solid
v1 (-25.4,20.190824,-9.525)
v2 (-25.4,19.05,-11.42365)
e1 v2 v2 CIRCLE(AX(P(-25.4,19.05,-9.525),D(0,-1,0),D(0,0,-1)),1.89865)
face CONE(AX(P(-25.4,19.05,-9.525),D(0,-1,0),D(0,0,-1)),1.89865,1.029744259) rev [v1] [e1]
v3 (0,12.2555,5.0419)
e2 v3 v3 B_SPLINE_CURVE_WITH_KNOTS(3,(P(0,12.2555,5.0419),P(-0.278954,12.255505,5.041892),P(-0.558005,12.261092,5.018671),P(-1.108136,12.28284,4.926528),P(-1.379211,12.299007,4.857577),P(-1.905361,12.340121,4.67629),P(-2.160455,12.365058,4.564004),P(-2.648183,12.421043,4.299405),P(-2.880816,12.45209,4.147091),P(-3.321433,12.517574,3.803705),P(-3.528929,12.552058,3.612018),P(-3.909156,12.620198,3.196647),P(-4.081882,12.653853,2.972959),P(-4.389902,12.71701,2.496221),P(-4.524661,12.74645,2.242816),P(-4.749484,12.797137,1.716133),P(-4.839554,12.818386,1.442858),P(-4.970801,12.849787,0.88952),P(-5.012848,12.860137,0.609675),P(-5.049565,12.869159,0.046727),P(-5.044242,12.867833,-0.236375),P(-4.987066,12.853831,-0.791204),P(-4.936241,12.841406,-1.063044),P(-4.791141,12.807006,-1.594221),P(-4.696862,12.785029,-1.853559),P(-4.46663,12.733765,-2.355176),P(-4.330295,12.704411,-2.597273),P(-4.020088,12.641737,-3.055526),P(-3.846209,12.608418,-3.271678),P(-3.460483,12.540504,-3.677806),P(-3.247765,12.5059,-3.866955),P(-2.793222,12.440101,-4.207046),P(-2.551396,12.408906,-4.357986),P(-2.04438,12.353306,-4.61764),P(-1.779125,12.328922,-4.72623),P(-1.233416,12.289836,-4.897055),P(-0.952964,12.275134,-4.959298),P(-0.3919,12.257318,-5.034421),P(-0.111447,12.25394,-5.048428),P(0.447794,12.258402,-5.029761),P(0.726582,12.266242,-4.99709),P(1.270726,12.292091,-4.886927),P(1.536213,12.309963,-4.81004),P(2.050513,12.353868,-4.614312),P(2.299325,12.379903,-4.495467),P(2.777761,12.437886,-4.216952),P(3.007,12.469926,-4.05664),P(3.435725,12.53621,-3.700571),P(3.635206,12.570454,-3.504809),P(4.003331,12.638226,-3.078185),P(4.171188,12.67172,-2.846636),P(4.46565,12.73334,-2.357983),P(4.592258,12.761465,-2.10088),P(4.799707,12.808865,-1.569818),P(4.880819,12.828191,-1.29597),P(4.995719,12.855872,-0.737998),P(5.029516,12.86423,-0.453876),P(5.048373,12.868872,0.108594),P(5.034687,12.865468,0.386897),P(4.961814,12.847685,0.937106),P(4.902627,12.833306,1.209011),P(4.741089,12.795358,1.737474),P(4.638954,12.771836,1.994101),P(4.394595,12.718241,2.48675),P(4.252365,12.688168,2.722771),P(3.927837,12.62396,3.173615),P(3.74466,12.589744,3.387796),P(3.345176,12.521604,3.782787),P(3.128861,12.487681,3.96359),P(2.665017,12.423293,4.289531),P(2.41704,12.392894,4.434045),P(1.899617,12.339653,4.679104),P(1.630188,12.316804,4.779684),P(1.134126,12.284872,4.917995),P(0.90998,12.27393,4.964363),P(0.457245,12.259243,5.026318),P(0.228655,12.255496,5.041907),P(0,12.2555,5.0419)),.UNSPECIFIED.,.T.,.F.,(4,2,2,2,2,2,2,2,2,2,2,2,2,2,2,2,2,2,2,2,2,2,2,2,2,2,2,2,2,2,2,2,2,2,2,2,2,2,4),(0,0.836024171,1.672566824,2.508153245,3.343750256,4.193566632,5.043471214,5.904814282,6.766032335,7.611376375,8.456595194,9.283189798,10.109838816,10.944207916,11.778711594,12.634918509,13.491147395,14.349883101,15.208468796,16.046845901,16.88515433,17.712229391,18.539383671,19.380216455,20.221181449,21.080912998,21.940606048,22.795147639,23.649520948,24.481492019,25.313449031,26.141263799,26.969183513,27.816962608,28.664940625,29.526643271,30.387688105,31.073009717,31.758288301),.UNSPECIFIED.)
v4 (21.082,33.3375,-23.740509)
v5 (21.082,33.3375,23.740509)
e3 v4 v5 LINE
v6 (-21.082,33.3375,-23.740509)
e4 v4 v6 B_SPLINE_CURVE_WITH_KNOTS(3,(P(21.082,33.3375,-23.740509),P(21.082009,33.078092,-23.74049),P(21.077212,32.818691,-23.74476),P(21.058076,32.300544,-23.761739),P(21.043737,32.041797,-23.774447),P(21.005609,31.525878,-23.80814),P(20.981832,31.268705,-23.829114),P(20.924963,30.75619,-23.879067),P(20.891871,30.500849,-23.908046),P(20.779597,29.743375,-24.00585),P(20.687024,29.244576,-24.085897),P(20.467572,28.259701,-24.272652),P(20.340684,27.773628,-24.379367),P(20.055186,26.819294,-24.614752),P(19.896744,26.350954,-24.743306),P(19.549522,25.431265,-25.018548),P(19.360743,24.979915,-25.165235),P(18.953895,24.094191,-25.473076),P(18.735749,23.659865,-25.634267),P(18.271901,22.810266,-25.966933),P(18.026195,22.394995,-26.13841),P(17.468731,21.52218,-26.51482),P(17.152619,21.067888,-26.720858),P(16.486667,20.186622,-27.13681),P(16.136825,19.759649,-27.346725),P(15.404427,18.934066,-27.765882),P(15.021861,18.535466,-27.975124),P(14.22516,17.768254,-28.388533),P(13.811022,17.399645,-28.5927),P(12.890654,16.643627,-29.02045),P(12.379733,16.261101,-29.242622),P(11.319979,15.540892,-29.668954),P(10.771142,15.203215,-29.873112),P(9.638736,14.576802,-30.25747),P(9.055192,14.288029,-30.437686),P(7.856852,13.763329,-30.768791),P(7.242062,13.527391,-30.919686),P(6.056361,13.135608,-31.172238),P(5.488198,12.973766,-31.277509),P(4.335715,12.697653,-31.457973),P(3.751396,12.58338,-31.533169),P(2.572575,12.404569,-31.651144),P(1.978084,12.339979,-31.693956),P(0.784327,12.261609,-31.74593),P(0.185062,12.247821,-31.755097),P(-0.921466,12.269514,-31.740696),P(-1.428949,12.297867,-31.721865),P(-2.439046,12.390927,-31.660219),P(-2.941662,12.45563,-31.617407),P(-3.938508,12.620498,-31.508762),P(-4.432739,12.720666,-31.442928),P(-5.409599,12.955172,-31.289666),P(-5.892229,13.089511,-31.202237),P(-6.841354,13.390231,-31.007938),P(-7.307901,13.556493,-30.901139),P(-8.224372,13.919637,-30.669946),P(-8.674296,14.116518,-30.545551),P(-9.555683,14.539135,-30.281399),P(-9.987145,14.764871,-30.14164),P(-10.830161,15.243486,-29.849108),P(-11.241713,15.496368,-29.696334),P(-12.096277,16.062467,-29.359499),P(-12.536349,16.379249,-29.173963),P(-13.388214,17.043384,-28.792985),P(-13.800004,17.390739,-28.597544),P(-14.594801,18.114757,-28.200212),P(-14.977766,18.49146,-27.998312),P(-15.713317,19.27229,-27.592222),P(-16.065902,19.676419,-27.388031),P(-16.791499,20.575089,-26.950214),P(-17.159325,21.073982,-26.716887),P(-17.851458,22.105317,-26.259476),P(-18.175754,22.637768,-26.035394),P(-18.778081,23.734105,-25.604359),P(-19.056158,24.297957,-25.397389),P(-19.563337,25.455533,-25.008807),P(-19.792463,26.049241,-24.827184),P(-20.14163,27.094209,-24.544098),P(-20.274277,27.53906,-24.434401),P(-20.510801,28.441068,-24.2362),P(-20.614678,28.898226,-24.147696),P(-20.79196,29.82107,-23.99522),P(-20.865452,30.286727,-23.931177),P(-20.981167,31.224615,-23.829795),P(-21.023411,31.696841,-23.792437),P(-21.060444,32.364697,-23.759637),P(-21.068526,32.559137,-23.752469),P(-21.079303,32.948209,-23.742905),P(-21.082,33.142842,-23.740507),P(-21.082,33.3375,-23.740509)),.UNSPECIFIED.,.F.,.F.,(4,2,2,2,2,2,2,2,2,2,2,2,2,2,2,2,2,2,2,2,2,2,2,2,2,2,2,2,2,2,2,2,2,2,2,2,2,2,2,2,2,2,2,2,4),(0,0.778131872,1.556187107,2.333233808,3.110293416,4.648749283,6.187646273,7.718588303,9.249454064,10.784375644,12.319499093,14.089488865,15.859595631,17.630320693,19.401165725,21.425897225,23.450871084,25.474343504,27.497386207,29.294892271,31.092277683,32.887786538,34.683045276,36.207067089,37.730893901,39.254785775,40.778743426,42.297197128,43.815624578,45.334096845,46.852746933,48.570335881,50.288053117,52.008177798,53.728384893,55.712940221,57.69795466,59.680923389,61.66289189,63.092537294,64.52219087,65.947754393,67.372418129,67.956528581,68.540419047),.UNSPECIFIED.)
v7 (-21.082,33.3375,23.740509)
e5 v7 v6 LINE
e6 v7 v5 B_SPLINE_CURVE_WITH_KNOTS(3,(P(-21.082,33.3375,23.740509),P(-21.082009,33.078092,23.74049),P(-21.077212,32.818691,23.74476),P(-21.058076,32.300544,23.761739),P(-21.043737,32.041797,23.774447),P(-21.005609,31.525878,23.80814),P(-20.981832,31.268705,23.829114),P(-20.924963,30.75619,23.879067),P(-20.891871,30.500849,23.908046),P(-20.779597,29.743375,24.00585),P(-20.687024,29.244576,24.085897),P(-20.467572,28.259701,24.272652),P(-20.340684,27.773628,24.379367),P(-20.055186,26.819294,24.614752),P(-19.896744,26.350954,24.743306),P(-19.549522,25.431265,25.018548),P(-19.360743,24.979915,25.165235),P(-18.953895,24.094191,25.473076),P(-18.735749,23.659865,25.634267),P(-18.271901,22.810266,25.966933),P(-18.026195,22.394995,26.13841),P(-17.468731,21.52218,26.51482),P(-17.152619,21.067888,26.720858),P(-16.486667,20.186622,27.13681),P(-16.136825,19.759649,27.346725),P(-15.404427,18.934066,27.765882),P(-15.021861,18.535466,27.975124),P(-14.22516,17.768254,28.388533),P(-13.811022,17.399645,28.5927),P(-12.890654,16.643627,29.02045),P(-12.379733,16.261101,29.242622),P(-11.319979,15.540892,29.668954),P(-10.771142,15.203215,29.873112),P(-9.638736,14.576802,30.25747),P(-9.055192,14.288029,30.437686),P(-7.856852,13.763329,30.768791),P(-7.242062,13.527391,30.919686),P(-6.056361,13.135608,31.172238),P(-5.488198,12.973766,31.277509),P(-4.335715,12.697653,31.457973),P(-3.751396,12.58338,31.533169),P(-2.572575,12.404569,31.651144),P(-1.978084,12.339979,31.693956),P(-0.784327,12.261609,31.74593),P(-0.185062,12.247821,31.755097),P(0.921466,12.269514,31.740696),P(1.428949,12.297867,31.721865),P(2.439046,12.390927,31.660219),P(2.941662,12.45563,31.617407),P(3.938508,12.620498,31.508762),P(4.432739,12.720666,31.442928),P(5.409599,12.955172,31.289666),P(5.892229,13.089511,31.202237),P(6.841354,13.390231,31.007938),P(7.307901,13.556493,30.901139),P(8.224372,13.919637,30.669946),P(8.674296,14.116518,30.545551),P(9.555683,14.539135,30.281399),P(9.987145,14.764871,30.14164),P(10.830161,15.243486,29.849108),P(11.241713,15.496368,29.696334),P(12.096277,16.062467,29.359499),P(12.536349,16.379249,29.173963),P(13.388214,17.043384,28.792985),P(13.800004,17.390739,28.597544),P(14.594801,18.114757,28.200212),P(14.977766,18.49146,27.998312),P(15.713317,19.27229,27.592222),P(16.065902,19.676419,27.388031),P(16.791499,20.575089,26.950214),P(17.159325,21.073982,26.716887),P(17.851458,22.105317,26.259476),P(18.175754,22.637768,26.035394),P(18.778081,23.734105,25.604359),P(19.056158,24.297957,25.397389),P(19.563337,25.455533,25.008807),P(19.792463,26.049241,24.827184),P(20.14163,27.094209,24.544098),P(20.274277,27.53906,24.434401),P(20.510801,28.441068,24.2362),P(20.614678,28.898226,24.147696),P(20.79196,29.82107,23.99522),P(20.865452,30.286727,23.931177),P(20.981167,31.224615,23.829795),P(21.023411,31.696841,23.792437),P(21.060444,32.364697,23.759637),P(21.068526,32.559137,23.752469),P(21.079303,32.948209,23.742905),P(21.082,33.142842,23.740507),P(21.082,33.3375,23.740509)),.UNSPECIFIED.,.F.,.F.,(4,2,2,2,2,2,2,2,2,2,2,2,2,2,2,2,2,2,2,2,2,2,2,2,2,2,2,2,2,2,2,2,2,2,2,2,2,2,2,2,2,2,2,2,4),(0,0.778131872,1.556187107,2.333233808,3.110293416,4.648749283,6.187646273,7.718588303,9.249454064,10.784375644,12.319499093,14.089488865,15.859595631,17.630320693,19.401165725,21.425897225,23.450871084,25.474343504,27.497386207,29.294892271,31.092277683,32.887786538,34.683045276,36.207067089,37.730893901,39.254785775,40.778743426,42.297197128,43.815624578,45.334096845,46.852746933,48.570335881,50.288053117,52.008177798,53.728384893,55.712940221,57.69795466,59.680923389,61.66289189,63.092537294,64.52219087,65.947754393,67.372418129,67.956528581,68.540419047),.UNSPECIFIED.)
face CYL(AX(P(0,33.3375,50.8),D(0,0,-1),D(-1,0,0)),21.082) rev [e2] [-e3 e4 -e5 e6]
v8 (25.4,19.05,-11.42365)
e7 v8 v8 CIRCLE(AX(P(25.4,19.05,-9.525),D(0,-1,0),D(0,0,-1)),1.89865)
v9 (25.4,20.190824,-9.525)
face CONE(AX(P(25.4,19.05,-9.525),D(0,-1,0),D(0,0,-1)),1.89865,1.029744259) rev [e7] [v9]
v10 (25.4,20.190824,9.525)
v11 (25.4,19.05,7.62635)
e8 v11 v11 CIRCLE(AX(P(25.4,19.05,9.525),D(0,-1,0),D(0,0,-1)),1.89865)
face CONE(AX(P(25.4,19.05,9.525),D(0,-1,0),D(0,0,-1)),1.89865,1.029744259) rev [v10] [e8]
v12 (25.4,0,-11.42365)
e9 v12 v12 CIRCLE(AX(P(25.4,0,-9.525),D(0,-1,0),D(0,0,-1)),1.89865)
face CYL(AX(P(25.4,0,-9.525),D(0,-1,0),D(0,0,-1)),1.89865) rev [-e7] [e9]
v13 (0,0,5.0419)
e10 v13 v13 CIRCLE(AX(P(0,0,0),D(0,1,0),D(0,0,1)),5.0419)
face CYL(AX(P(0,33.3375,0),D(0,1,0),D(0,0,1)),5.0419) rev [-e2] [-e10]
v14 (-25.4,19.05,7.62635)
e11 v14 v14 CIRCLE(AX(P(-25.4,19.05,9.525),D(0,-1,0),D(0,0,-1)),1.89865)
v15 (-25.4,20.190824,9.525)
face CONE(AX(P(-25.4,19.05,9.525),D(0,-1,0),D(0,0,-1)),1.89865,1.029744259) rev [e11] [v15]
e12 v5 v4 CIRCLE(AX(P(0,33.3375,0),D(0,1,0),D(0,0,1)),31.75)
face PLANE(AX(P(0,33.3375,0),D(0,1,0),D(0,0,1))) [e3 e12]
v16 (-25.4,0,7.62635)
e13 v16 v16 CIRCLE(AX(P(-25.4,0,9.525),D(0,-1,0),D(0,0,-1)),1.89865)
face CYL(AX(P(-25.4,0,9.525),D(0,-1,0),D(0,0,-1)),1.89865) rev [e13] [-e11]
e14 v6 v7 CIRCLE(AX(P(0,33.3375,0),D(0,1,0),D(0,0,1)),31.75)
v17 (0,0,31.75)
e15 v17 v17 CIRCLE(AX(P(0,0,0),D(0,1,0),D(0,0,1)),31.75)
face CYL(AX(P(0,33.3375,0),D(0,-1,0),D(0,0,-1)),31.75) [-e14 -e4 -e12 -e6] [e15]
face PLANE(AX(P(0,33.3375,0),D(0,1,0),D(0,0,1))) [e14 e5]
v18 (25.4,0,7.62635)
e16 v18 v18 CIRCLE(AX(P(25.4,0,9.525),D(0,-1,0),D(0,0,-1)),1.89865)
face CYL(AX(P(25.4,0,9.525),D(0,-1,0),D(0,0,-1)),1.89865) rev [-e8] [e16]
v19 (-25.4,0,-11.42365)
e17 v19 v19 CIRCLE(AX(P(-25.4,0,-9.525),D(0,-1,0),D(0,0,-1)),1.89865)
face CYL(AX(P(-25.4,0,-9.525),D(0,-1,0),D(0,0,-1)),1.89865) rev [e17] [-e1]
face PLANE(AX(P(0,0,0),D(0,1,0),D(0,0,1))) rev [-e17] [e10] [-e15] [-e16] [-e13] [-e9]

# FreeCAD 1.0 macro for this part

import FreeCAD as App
import Part
import Sketcher
Q = App.Units.Quantity

doc = App.newDocument("Part")
body = doc.addObject("PartDesign::Body", "Body")

sketch1 = doc.addObject("Sketcher::SketchObject", "Sketch")
body.addObject(sketch1)
sketch1.AttachmentSupport = (doc.XZ_Plane, [""])
sketch1.MapMode = "FlatFace"
sketch1.addGeometry(Part.Circle(App.Vector(0, 0, 0), App.Vector(0, 0, 1), 31.75), False)
sketch1.addConstraint([
    Sketcher.Constraint("Coincident", 0, 3, -1, 1),
    Sketcher.Constraint("Diameter", 0, Q("2.5 in")),
])
pad1 = doc.addObject("PartDesign::Pad", "Pad")
body.addObject(pad1)
pad1.Profile = sketch1
pad1.Length = Q("1.3125 in")
pad1.Reversed = True

sketch2 = doc.addObject("Sketcher::SketchObject", "Sketch001")
body.addObject(sketch2)
sketch2.AttachmentSupport = (doc.XZ_Plane, [""])
sketch2.MapMode = "FlatFace"
sketch2.AttachmentOffset = App.Placement(App.Vector(0, 0, -1.3125 * 25.4), App.Rotation())
sketch2.addGeometry(Part.Circle(App.Vector(0, 0, 0), App.Vector(0, 0, 1), 5.0419), False)
sketch2.addConstraint([
    Sketcher.Constraint("Coincident", 0, 3, -1, 1),
    Sketcher.Constraint("Diameter", 0, Q("0.397 in")),
])
doc.recompute()
hole = doc.addObject("PartDesign::Hole", "Hole")
body.addObject(hole)
hole.Profile = sketch2
hole.ThreadType = "None"
hole.Diameter = Q("0.397 in")
hole.DepthType = "ThroughAll"
hole.Reversed = True

sketch3 = doc.addObject("Sketcher::SketchObject", "Sketch002")
body.addObject(sketch3)
sketch3.AttachmentSupport = (doc.XY_Plane, [""])
sketch3.MapMode = "FlatFace"
sketch3.addGeometry(Part.Circle(App.Vector(0, 33.3375, 0), App.Vector(0, 0, 1), 21.082), False)
sketch3.addConstraint([
    Sketcher.Constraint("PointOnObject", 0, 3, -2),
    Sketcher.Constraint("Diameter", 0, Q("1.66 in")),
    Sketcher.Constraint("DistanceY", -1, 1, 0, 3, Q("1.3125 in")),
])
pocket1 = doc.addObject("PartDesign::Pocket", "Pocket")
body.addObject(pocket1)
pocket1.Profile = sketch3
pocket1.Type = "ThroughAll"
pocket1.Midplane = True

sketch4 = doc.addObject("Sketcher::SketchObject", "Sketch003")
body.addObject(sketch4)
sketch4.AttachmentSupport = (doc.XZ_Plane, [""])
sketch4.MapMode = "FlatFace"
sketch4.addGeometry([
    Part.Circle(App.Vector(-25.4, 9.525, 0), App.Vector(0, 0, 1), 1.89865),
    Part.Circle(App.Vector(-25.4, -9.525, 0), App.Vector(0, 0, 1), 1.89865),
    Part.Circle(App.Vector(25.4, -9.525, 0), App.Vector(0, 0, 1), 1.89865),
    Part.Circle(App.Vector(25.4, 9.525, 0), App.Vector(0, 0, 1), 1.89865),
], False)
sketch4.addConstraint([
    Sketcher.Constraint("Equal", 0, 1),
    Sketcher.Constraint("Equal", 1, 2),
    Sketcher.Constraint("Equal", 2, 3),
    Sketcher.Constraint("Symmetric", 0, 3, 2, 3, -1, 1),
    Sketcher.Constraint("Symmetric", 1, 3, 3, 3, -1, 1),
    Sketcher.Constraint("Symmetric", 1, 3, 2, 3, -2),
    Sketcher.Constraint("DistanceX", 0, 3, -1, 1, Q("1 in")),
    Sketcher.Constraint("Diameter", 0, Q("0.1495 in")),
    Sketcher.Constraint("DistanceY", 1, 3, 0, 3, Q("0.75 in")),
])
doc.recompute()
hole2 = doc.addObject("PartDesign::Hole", "Hole001")
body.addObject(hole2)
hole2.Profile = sketch4
hole2.ThreadType = "None"
hole2.Diameter = Q("0.1495 in")
hole2.DepthType = "Dimension"
hole2.Depth = Q("0.75 in")
hole2.DrillPoint = "Angled"
hole2.DrillPointAngle = 118

doc.recompute()
